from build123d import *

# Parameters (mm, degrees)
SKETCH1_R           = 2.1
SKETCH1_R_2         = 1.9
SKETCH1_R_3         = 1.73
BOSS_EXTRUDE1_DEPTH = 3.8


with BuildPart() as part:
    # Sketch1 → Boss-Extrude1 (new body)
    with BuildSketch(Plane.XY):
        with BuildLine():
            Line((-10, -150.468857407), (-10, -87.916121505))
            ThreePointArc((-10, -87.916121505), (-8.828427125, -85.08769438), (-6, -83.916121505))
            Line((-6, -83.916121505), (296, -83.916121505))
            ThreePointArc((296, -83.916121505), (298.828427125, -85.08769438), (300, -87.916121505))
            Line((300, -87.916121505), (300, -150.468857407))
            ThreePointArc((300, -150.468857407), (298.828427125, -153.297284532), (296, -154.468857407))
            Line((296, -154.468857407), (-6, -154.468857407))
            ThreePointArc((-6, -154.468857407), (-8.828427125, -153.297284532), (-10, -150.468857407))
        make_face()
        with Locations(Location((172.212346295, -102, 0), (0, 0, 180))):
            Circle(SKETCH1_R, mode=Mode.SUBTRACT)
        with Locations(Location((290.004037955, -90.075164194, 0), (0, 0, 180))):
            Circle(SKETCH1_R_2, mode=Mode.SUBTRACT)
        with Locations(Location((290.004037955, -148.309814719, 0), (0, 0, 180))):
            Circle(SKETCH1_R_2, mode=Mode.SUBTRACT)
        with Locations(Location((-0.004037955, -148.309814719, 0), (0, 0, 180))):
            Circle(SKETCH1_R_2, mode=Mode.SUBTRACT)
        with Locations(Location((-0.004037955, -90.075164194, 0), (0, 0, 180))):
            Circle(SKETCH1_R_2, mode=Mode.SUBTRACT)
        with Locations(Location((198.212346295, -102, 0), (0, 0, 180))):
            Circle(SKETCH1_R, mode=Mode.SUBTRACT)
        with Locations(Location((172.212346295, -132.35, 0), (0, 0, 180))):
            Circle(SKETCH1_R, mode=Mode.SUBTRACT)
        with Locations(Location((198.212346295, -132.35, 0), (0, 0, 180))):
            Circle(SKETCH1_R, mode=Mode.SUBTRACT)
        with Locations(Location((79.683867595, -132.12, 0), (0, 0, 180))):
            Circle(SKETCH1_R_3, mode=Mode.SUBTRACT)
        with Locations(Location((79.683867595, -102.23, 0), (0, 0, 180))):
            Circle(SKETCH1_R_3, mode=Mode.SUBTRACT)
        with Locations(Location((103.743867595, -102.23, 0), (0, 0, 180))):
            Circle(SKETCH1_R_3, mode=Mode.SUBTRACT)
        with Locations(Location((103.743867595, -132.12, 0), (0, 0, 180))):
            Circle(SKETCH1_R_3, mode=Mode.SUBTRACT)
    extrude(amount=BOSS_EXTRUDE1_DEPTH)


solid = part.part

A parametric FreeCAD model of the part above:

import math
import FreeCAD as App
import Part
import Sketcher
from FreeCAD import Vector

doc = App.newDocument("Part")
params = doc.addObject("Spreadsheet::Sheet", "Params")
for row, (alias, value) in enumerate([
    ("sketch1_radius", "4 mm"),
    ("sketch1_diameter", "3.8 mm"),
    ("sketch1_diameter2", "4.2 mm"),
    ("sketch1_diameter3", "3.46 mm"),
    ("sketch1_width", "302 mm"),
    ("pad1_length", "3.8 mm"),
], start=1):
    params.set(f"A{row}", alias)
    params.set(f"B{row}", "=" + value)
    params.setAlias(f"B{row}", alias)

body = doc.addObject("PartDesign::Body", "Body")

sketch1 = body.newObject("Sketcher::SketchObject", "Sketch")
sketch1.AttachmentSupport = (doc.getObject("XY_Plane"), [""])
sketch1.MapMode = "FlatFace"
sketch1.addGeometry(Part.LineSegment(Vector(-10, -87.9, 0), Vector(-10, -150.5, 0)), False)
sketch1.addGeometry(Part.ArcOfCircle(Part.Circle(Vector(-6, -150.5, 0), Vector(0, 0, 1), 4), math.radians(180), math.radians(270)), False)
sketch1.addGeometry(Part.LineSegment(Vector(-6, -154.5, 0), Vector(296, -154.5, 0)), False)
sketch1.addGeometry(Part.ArcOfCircle(Part.Circle(Vector(296, -150.5, 0), Vector(0, 0, 1), 4), math.radians(-90), math.radians(0)), False)
sketch1.addGeometry(Part.LineSegment(Vector(300, -150.5, 0), Vector(300, -87.9, 0)), False)
sketch1.addGeometry(Part.ArcOfCircle(Part.Circle(Vector(296, -87.9, 0), Vector(0, 0, 1), 4), math.radians(0), math.radians(90)), False)
sketch1.addGeometry(Part.LineSegment(Vector(296, -83.9, 0), Vector(-6, -83.9, 0)), False)
sketch1.addGeometry(Part.ArcOfCircle(Part.Circle(Vector(-6, -87.9, 0), Vector(0, 0, 1), 4), math.radians(90), math.radians(180)), False)
sketch1.addGeometry(Part.Circle(Vector(290, -148.3, 0), Vector(0, 0, 1), 1.9), False)
sketch1.addGeometry(Part.Circle(Vector(198.2, -132.3, 0), Vector(0, 0, 1), 2.1), False)
sketch1.addGeometry(Part.Circle(Vector(172.2, -132.3, 0), Vector(0, 0, 1), 2.1), False)
sketch1.addGeometry(Part.Circle(Vector(0, -148.3, 0), Vector(0, 0, 1), 1.9), False)
sketch1.addGeometry(Part.Circle(Vector(103.7, -132.1, 0), Vector(0, 0, 1), 1.7), False)
sketch1.addGeometry(Part.Circle(Vector(79.7, -132.1, 0), Vector(0, 0, 1), 1.7), False)
sketch1.addGeometry(Part.Circle(Vector(290, -90.1, 0), Vector(0, 0, 1), 1.9), False)
sketch1.addGeometry(Part.Circle(Vector(198.2, -102, 0), Vector(0, 0, 1), 2.1), False)
sketch1.addGeometry(Part.Circle(Vector(172.2, -102, 0), Vector(0, 0, 1), 2.1), False)
sketch1.addGeometry(Part.Circle(Vector(103.7, -102.2, 0), Vector(0, 0, 1), 1.7), False)
sketch1.addGeometry(Part.Circle(Vector(79.7, -102.2, 0), Vector(0, 0, 1), 1.7), False)
sketch1.addGeometry(Part.Circle(Vector(0, -90.1, 0), Vector(0, 0, 1), 1.9), False)
sketch1.addConstraint(Sketcher.Constraint("Tangent", 0, 2, 1, 1))
sketch1.addConstraint(Sketcher.Constraint("Tangent", 1, 2, 2, 1))
sketch1.addConstraint(Sketcher.Constraint("Tangent", 2, 2, 3, 1))
sketch1.addConstraint(Sketcher.Constraint("Tangent", 3, 2, 4, 1))
sketch1.addConstraint(Sketcher.Constraint("Tangent", 4, 2, 5, 1))
sketch1.addConstraint(Sketcher.Constraint("Tangent", 5, 2, 6, 1))
sketch1.addConstraint(Sketcher.Constraint("Tangent", 6, 2, 7, 1))
sketch1.addConstraint(Sketcher.Constraint("Tangent", 7, 2, 0, 1))
sketch1.addConstraint(Sketcher.Constraint("Vertical", 0))
sketch1.addConstraint(Sketcher.Constraint("Horizontal", 2))
sketch1.addConstraint(Sketcher.Constraint("Vertical", 4))
sketch1.addConstraint(Sketcher.Constraint("Horizontal", 6))
sketch1.addConstraint(Sketcher.Constraint("Equal", 1, 3))
sketch1.addConstraint(Sketcher.Constraint("Equal", 3, 5))
sketch1.addConstraint(Sketcher.Constraint("Equal", 5, 7))
sketch1.addConstraint(Sketcher.Constraint("Equal", 9, 10))
sketch1.addConstraint(Sketcher.Constraint("Equal", 8, 11))
sketch1.addConstraint(Sketcher.Constraint("Equal", 12, 13))
sketch1.addConstraint(Sketcher.Constraint("Equal", 11, 14))
sketch1.addConstraint(Sketcher.Constraint("Equal", 10, 15))
sketch1.addConstraint(Sketcher.Constraint("Equal", 15, 16))
sketch1.addConstraint(Sketcher.Constraint("Equal", 13, 17))
sketch1.addConstraint(Sketcher.Constraint("Equal", 17, 18))
sketch1.addConstraint(Sketcher.Constraint("Equal", 14, 19))
sketch1.addConstraint(Sketcher.Constraint("Horizontal", 9, 3, 10, 3))
sketch1.addConstraint(Sketcher.Constraint("Horizontal", 8, 3, 11, 3))
sketch1.addConstraint(Sketcher.Constraint("Horizontal", 12, 3, 13, 3))
sketch1.addConstraint(Sketcher.Constraint("Horizontal", 15, 3, 16, 3))
sketch1.addConstraint(Sketcher.Constraint("Horizontal", 17, 3, 18, 3))
sketch1.addConstraint(Sketcher.Constraint("Horizontal", 14, 3, 19, 3))
sketch1.addConstraint(Sketcher.Constraint("Vertical", 8, 3, 14, 3))
sketch1.addConstraint(Sketcher.Constraint("Vertical", 9, 3, 15, 3))
sketch1.addConstraint(Sketcher.Constraint("Vertical", 10, 3, 16, 3))
sketch1.addConstraint(Sketcher.Constraint("Vertical", 12, 3, 17, 3))
sketch1.addConstraint(Sketcher.Constraint("Vertical", 13, 3, 18, 3))
sketch1.addConstraint(Sketcher.Constraint("Vertical", 11, 3, 19, 3))
sketch1.addConstraint(Sketcher.Constraint("Radius", 1, 4.0))
sketch1.addConstraint(Sketcher.Constraint("Diameter", 8, 3.8))
sketch1.addConstraint(Sketcher.Constraint("Diameter", 9, 4.2))
sketch1.addConstraint(Sketcher.Constraint("Diameter", 12, 3.46))
sketch1.addConstraint(Sketcher.Constraint("DistanceX", 2, 1, 2, 2, 302.0))
sketch1.addConstraint(Sketcher.Constraint("DistanceX", 1, 3, -1, 1, 6.0))
sketch1.addConstraint(Sketcher.Constraint("DistanceY", 15, 3, -1, 1, 102.0))
sketch1.addConstraint(Sketcher.Constraint("DistanceX", 10, 3, 9, 3, 26.0))
sketch1.addConstraint(Sketcher.Constraint("DistanceY", 9, 3, -1, 1, 132.35))
sketch1.addConstraint(Sketcher.Constraint("DistanceY", 12, 3, -1, 1, 132.12))
sketch1.addConstraint(Sketcher.Constraint("DistanceY", 17, 3, -1, 1, 102.23))
sketch1.addConstraint(Sketcher.Constraint("DistanceX", 13, 3, 12, 3, 24.06))
sketch1.addConstraint(Sketcher.Constraint("DistanceY", 0, 2, 0, 1, 62.552736))
sketch1.addConstraint(Sketcher.Constraint("DistanceY", 5, 3, -1, 1, 87.916122))
sketch1.addConstraint(Sketcher.Constraint("DistanceX", 9, 3, 8, 3, 91.791692))
sketch1.addConstraint(Sketcher.Constraint("DistanceX", 12, 3, 10, 3, 68.468479))
sketch1.addConstraint(Sketcher.Constraint("DistanceY", 8, 3, 14, 3, 58.234651))
sketch1.addConstraint(Sketcher.Constraint("DistanceX", -1, 1, 8, 3, 290.004038))
sketch1.addConstraint(Sketcher.Constraint("DistanceY", 8, 3, -1, 1, 148.309815))
sketch1.addConstraint(Sketcher.Constraint("DistanceX", 11, 3, -1, 1, 0.004038))
sketch1.setExpression("Constraints[36]", "Params.sketch1_radius")
sketch1.setExpression("Constraints[37]", "Params.sketch1_diameter")
sketch1.setExpression("Constraints[38]", "Params.sketch1_diameter2")
sketch1.setExpression("Constraints[39]", "Params.sketch1_diameter3")
sketch1.setExpression("Constraints[40]", "Params.sketch1_width")
pad1 = body.newObject("PartDesign::Pad", "Pad")
pad1.Profile = sketch1
pad1.setExpression("Length", "Params.pad1_length")

doc.recompute()
